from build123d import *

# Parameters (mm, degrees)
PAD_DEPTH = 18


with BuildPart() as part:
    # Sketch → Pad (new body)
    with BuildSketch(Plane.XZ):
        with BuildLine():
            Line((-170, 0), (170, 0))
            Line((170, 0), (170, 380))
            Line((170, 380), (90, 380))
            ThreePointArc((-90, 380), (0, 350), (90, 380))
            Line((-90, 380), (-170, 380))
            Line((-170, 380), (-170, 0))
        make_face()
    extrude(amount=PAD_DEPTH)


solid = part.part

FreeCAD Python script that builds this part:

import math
import FreeCAD as App
import Part
import Sketcher
Q = App.Units.Quantity

doc = App.newDocument("Part")
params = doc.addObject("Spreadsheet::Sheet", "Params")
for row, (alias, value) in enumerate([
    ("sketch1_radius", "150 mm"),
    ("sketch1_width", "340 mm"),
    ("sketch1_width2", "80 mm"),
    ("sketch1_height", "380 mm"),
    ("pad1_length", "18 mm"),
], start=1):
    params.set(f"A{row}", alias)
    params.set(f"B{row}", "=" + value)
    params.setAlias(f"B{row}", alias)

body = doc.addObject("PartDesign::Body", "Body")

sketch1 = body.newObject("Sketcher::SketchObject", "Sketch")
sketch1.AttachmentSupport = (doc.getObject("XZ_Plane"), [""])
sketch1.MapMode = "FlatFace"
sketch1.addGeometry(Part.LineSegment(App.Vector(-170, 0, 0), App.Vector(170, 0, 0)), False)
sketch1.addGeometry(Part.LineSegment(App.Vector(170, 0, 0), App.Vector(170, 380, 0)), False)
sketch1.addGeometry(Part.LineSegment(App.Vector(170, 380, 0), App.Vector(90, 380, 0)), False)
sketch1.addGeometry(Part.ArcOfCircle(Part.Circle(App.Vector(0, 500, 0), App.Vector(0, 0, 1), 150), math.radians(-127), math.radians(-53)), False)
sketch1.addGeometry(Part.LineSegment(App.Vector(-90, 380, 0), App.Vector(-170, 380, 0)), False)
sketch1.addGeometry(Part.LineSegment(App.Vector(-170, 380, 0), App.Vector(-170, 0, 0)), False)
sketch1.addConstraint(Sketcher.Constraint("Coincident", 0, 2, 1, 1))
sketch1.addConstraint(Sketcher.Constraint("Coincident", 1, 2, 2, 1))
sketch1.addConstraint(Sketcher.Constraint("Coincident", 2, 2, 3, 2))
sketch1.addConstraint(Sketcher.Constraint("Coincident", 3, 1, 4, 1))
sketch1.addConstraint(Sketcher.Constraint("Coincident", 4, 2, 5, 1))
sketch1.addConstraint(Sketcher.Constraint("Coincident", 5, 2, 0, 1))
sketch1.addConstraint(Sketcher.Constraint("Horizontal", 0))
sketch1.addConstraint(Sketcher.Constraint("Vertical", 1))
sketch1.addConstraint(Sketcher.Constraint("Horizontal", 2))
sketch1.addConstraint(Sketcher.Constraint("Horizontal", 4))
sketch1.addConstraint(Sketcher.Constraint("Vertical", 5))
sketch1.addConstraint(Sketcher.Constraint("Symmetric", 0, 2, 5, 2, -1, 1))
sketch1.addConstraint(Sketcher.Constraint("Symmetric", 2, 2, 3, 1, -2))
sketch1.addConstraint(Sketcher.Constraint("Radius", 3, Q("150 mm")))
sketch1.addConstraint(Sketcher.Constraint("DistanceX", 0, 1, 0, 2, Q("340 mm")))
sketch1.addConstraint(Sketcher.Constraint("DistanceX", 2, 2, 2, 1, Q("80 mm")))
sketch1.addConstraint(Sketcher.Constraint("DistanceY", 1, 1, 1, 2, Q("380 mm")))
sketch1.setExpression("Constraints[13]", "Params.sketch1_radius")
sketch1.setExpression("Constraints[14]", "Params.sketch1_width")
sketch1.setExpression("Constraints[15]", "Params.sketch1_width2")
sketch1.setExpression("Constraints[16]", "Params.sketch1_height")
pad1 = body.newObject("PartDesign::Pad", "Pad")
pad1.Profile = sketch1
pad1.setExpression("Length", "Params.pad1_length")

doc.recompute()
